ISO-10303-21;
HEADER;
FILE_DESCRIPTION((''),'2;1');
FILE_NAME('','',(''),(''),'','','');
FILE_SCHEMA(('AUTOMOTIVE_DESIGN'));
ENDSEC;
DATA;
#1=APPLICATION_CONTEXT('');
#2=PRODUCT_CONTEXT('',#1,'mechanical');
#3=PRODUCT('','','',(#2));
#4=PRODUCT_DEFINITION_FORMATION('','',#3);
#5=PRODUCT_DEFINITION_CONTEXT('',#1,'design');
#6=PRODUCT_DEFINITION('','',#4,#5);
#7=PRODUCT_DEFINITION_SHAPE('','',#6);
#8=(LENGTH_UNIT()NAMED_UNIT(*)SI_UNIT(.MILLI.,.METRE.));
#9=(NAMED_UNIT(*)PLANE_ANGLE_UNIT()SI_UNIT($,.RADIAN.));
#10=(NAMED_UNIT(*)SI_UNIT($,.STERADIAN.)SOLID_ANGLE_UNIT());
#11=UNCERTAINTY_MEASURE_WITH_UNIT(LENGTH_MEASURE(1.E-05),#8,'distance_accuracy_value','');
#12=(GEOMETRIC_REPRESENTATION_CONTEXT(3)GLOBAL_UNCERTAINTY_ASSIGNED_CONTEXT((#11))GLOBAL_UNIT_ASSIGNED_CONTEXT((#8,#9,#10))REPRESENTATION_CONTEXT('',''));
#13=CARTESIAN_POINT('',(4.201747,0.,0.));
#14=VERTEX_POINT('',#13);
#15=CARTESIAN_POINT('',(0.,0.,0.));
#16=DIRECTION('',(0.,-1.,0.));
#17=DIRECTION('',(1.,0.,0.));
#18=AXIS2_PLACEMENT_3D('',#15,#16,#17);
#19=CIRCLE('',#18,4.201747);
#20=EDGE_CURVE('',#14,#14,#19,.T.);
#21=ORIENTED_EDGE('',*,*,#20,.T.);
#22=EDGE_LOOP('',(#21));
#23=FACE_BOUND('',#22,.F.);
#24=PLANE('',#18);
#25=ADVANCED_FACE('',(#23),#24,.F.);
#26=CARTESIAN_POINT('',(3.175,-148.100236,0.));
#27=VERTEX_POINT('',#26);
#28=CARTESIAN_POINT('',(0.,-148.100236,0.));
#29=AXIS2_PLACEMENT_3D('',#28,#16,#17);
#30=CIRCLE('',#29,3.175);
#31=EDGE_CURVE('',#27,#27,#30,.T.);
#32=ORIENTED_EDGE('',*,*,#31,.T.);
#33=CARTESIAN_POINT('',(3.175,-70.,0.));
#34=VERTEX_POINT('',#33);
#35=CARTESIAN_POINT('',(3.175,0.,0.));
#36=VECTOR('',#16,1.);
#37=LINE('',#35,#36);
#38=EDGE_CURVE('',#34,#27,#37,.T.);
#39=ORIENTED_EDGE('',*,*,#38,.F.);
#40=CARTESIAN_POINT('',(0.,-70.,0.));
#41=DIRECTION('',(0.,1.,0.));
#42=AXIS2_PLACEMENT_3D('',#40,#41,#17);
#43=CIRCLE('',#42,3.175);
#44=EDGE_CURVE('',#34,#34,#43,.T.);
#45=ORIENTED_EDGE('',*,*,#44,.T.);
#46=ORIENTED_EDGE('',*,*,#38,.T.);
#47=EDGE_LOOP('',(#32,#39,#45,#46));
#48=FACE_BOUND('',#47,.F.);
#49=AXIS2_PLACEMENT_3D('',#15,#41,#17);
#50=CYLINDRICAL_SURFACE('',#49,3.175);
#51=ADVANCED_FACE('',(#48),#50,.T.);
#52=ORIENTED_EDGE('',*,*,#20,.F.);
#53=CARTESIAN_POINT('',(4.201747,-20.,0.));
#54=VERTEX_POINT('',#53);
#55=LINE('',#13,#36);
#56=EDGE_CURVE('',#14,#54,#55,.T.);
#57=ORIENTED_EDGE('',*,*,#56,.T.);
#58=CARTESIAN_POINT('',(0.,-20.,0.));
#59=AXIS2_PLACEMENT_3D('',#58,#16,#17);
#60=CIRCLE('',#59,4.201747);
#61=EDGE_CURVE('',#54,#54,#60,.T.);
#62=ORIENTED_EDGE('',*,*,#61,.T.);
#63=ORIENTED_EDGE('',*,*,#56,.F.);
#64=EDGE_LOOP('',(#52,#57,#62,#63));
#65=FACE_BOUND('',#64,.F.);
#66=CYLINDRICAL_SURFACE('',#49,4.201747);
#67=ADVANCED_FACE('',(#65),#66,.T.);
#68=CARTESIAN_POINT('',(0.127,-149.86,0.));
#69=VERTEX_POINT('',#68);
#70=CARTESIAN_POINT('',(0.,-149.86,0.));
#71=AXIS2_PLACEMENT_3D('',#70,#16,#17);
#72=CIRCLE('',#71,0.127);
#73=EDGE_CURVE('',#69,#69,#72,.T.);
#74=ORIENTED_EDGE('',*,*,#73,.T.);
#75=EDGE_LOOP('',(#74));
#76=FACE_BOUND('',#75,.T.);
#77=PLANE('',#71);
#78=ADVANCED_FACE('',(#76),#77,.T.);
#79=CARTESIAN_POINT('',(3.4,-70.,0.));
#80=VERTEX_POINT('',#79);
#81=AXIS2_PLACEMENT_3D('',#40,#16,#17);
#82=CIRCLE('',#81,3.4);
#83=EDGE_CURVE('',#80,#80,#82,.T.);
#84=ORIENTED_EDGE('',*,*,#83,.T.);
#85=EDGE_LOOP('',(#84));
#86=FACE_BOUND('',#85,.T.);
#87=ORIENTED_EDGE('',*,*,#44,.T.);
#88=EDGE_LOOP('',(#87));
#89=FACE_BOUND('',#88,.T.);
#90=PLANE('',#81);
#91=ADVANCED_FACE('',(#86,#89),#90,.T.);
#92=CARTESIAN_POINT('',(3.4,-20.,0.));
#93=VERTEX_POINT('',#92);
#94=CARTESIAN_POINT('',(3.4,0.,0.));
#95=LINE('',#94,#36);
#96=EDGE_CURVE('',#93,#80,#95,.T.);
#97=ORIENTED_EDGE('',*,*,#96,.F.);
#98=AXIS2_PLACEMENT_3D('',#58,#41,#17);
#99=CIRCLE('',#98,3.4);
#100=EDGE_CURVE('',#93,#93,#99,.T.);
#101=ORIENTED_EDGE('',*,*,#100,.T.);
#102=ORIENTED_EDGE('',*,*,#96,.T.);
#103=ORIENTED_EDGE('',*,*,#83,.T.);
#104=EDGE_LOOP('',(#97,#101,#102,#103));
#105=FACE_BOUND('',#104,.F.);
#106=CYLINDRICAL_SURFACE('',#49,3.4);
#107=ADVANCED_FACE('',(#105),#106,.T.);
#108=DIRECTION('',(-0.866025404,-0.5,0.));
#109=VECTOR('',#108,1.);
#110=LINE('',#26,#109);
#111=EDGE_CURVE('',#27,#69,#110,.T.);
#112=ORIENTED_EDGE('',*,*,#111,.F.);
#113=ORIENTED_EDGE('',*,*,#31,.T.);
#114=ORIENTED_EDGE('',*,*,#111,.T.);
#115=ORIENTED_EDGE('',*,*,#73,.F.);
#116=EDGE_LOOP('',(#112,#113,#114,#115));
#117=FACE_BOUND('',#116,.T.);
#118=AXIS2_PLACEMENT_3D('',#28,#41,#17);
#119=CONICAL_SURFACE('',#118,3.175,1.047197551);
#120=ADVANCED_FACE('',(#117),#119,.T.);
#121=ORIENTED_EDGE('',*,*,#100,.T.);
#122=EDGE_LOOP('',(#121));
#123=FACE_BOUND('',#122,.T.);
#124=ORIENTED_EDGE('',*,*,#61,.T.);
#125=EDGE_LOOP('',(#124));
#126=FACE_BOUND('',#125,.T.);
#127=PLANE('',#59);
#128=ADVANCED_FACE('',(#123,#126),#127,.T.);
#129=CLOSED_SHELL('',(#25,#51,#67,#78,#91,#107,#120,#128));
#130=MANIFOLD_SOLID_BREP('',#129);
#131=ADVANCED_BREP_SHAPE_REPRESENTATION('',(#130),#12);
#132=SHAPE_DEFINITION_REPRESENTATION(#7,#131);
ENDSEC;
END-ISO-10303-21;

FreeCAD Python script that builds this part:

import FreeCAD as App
import Part
import Sketcher
from FreeCAD import Vector
Q = App.Units.Quantity


def edges_at(feature, points):
    """Names of the edges that pass closest to the given points."""
    edges = feature.Shape.Edges
    near = lambda p: min(range(len(edges)), key=lambda i: edges[i].distToShape(Part.Vertex(*p))[0])
    return sorted({f"Edge{near(p) + 1}" for p in points})

doc = App.newDocument("Part")
params = doc.addObject("Spreadsheet::Sheet", "Params")
for row, (alias, value) in enumerate([
    ("sketch1_diameter", "6.35 mm"),
    ("pad1_length", "149.86 mm"),
    ("chamfer_size", "1.759764 mm"),
    ("chamfer_size2", "3.048 mm"),
    ("sketch2_diameter", "6.8 mm"),
    ("pad2_length", "70 mm"),
    ("pad3_length", "20 mm"),
], start=1):
    params.set(f"A{row}", alias)
    params.set(f"B{row}", "=" + value)
    params.setAlias(f"B{row}", alias)

body = doc.addObject("PartDesign::Body", "Body")

# Sketch on XZ plane
sketch1 = body.newObject("Sketcher::SketchObject", "Sketch")
sketch1.AttachmentSupport = (doc.getObject("XZ_Plane"), [""])
sketch1.MapMode = "FlatFace"
sketch1.addGeometry(Part.Circle(Vector(0, 0, 0), Vector(0, 0, 1), 3.2), False)
sketch1.addConstraint(Sketcher.Constraint("Coincident", 0, 3, -1, 1))
sketch1.addConstraint(Sketcher.Constraint("Diameter", 0, Q("6.35 mm")))
sketch1.setExpression("Constraints[1]", "Params.sketch1_diameter")
pad1 = body.newObject("PartDesign::Pad", "Pad")
pad1.Profile = sketch1
pad1.setExpression("Length", "Params.pad1_length")
doc.recompute()

chamfer = body.newObject("PartDesign::Chamfer", "Chamfer")
chamfer.Base = (pad1, edges_at(pad1, [(-3.175, -149.86, 0)]))
chamfer.ChamferType = "Two distances"
chamfer.setExpression("Size", "Params.chamfer_size")
chamfer.setExpression("Size2", "Params.chamfer_size2")

# Sketch on XZ plane
sketch2 = body.newObject("Sketcher::SketchObject", "Sketch001")
sketch2.AttachmentSupport = (doc.getObject("XZ_Plane"), [""])
sketch2.MapMode = "FlatFace"
sketch2.addGeometry(Part.Circle(Vector(0, 0, 0), Vector(0, 0, 1), 3.4), False)
sketch2.addConstraint(Sketcher.Constraint("Coincident", 0, 3, -1, 1))
sketch2.addConstraint(Sketcher.Constraint("Diameter", 0, Q("6.8 mm")))
sketch2.setExpression("Constraints[1]", "Params.sketch2_diameter")
pad2 = body.newObject("PartDesign::Pad", "Pad001")
pad2.Profile = sketch2
pad2.setExpression("Length", "Params.pad2_length")

# Sketch on XZ plane
sketch3 = body.newObject("Sketcher::SketchObject", "Sketch002")
sketch3.AttachmentSupport = (doc.getObject("XZ_Plane"), [""])
sketch3.MapMode = "FlatFace"
sketch3.addGeometry(Part.Circle(Vector(0, 0, 0), Vector(0, 0, 1), 4.2), False)
sketch3.addConstraint(Sketcher.Constraint("Coincident", 0, 3, -1, 1))
sketch3.addConstraint(Sketcher.Constraint("Diameter", 0, Q("8.403493 mm")))
pad3 = body.newObject("PartDesign::Pad", "Pad002")
pad3.Profile = sketch3
pad3.setExpression("Length", "Params.pad3_length")

doc.recompute()
